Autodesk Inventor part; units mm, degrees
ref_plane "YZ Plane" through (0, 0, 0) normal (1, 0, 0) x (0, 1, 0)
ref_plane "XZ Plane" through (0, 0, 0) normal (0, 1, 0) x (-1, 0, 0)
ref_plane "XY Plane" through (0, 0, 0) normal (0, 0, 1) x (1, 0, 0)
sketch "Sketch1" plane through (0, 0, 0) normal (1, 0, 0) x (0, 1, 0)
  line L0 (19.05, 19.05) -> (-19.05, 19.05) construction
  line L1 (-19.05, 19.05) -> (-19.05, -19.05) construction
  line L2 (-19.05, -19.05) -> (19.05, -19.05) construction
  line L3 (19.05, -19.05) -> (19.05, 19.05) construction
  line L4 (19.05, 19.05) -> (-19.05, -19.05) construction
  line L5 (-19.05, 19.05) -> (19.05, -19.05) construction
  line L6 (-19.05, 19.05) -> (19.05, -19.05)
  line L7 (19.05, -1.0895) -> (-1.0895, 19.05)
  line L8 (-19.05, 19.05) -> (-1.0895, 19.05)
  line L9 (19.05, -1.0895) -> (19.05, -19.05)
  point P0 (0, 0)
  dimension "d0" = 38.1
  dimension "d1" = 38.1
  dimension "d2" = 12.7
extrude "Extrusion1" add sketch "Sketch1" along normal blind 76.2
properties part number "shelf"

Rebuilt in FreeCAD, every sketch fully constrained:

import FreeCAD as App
import Part
import Sketcher
Q = App.Units.Quantity


def add_polygon(sketch, points):
    """Adds a closed chain of lines whose ends are joined by coincident constraints."""
    first, n = sketch.GeometryCount, len(points)
    for a, b in zip(points, points[1:] + points[:1]):
        sketch.addGeometry(Part.LineSegment(App.Vector(*a, 0), App.Vector(*b, 0)), False)
    for i in range(n):
        sketch.addConstraint(Sketcher.Constraint("Coincident", first + i, 2, first + (i + 1) % n, 1))

doc = App.newDocument("Part")
body = doc.addObject("PartDesign::Body", "Body")

sketch1 = doc.addObject("Sketcher::SketchObject", "Sketch")
body.addObject(sketch1)
sketch1.AttachmentSupport = (doc.YZ_Plane, [""])
sketch1.MapMode = "FlatFace"
add_polygon(sketch1, [(-1, 19), (-19, 19), (19, -19), (19, -1)])
sketch1.addConstraint(Sketcher.Constraint("Horizontal", 0))
sketch1.addConstraint(Sketcher.Constraint("Vertical", 2))
sketch1.addConstraint(Sketcher.Constraint("Symmetric", 0, 2, 1, 2, -1, 1))
sketch1.addConstraint(Sketcher.Constraint("Parallel", 1, 3))
sketch1.addConstraint(Sketcher.Constraint("Equal", 0, 2))
sketch1.addConstraint(Sketcher.Constraint("DistanceX", 0, 2, 1, 2, Q("1.5 in")))
sketch1.addConstraint(Sketcher.Constraint("DistanceX", 0, 2, 0, 1, Q("0.7071 in")))
pad1 = doc.addObject("PartDesign::Pad", "Pad")
body.addObject(pad1)
pad1.Profile = sketch1
pad1.Length = Q("3 in")

doc.recompute()
